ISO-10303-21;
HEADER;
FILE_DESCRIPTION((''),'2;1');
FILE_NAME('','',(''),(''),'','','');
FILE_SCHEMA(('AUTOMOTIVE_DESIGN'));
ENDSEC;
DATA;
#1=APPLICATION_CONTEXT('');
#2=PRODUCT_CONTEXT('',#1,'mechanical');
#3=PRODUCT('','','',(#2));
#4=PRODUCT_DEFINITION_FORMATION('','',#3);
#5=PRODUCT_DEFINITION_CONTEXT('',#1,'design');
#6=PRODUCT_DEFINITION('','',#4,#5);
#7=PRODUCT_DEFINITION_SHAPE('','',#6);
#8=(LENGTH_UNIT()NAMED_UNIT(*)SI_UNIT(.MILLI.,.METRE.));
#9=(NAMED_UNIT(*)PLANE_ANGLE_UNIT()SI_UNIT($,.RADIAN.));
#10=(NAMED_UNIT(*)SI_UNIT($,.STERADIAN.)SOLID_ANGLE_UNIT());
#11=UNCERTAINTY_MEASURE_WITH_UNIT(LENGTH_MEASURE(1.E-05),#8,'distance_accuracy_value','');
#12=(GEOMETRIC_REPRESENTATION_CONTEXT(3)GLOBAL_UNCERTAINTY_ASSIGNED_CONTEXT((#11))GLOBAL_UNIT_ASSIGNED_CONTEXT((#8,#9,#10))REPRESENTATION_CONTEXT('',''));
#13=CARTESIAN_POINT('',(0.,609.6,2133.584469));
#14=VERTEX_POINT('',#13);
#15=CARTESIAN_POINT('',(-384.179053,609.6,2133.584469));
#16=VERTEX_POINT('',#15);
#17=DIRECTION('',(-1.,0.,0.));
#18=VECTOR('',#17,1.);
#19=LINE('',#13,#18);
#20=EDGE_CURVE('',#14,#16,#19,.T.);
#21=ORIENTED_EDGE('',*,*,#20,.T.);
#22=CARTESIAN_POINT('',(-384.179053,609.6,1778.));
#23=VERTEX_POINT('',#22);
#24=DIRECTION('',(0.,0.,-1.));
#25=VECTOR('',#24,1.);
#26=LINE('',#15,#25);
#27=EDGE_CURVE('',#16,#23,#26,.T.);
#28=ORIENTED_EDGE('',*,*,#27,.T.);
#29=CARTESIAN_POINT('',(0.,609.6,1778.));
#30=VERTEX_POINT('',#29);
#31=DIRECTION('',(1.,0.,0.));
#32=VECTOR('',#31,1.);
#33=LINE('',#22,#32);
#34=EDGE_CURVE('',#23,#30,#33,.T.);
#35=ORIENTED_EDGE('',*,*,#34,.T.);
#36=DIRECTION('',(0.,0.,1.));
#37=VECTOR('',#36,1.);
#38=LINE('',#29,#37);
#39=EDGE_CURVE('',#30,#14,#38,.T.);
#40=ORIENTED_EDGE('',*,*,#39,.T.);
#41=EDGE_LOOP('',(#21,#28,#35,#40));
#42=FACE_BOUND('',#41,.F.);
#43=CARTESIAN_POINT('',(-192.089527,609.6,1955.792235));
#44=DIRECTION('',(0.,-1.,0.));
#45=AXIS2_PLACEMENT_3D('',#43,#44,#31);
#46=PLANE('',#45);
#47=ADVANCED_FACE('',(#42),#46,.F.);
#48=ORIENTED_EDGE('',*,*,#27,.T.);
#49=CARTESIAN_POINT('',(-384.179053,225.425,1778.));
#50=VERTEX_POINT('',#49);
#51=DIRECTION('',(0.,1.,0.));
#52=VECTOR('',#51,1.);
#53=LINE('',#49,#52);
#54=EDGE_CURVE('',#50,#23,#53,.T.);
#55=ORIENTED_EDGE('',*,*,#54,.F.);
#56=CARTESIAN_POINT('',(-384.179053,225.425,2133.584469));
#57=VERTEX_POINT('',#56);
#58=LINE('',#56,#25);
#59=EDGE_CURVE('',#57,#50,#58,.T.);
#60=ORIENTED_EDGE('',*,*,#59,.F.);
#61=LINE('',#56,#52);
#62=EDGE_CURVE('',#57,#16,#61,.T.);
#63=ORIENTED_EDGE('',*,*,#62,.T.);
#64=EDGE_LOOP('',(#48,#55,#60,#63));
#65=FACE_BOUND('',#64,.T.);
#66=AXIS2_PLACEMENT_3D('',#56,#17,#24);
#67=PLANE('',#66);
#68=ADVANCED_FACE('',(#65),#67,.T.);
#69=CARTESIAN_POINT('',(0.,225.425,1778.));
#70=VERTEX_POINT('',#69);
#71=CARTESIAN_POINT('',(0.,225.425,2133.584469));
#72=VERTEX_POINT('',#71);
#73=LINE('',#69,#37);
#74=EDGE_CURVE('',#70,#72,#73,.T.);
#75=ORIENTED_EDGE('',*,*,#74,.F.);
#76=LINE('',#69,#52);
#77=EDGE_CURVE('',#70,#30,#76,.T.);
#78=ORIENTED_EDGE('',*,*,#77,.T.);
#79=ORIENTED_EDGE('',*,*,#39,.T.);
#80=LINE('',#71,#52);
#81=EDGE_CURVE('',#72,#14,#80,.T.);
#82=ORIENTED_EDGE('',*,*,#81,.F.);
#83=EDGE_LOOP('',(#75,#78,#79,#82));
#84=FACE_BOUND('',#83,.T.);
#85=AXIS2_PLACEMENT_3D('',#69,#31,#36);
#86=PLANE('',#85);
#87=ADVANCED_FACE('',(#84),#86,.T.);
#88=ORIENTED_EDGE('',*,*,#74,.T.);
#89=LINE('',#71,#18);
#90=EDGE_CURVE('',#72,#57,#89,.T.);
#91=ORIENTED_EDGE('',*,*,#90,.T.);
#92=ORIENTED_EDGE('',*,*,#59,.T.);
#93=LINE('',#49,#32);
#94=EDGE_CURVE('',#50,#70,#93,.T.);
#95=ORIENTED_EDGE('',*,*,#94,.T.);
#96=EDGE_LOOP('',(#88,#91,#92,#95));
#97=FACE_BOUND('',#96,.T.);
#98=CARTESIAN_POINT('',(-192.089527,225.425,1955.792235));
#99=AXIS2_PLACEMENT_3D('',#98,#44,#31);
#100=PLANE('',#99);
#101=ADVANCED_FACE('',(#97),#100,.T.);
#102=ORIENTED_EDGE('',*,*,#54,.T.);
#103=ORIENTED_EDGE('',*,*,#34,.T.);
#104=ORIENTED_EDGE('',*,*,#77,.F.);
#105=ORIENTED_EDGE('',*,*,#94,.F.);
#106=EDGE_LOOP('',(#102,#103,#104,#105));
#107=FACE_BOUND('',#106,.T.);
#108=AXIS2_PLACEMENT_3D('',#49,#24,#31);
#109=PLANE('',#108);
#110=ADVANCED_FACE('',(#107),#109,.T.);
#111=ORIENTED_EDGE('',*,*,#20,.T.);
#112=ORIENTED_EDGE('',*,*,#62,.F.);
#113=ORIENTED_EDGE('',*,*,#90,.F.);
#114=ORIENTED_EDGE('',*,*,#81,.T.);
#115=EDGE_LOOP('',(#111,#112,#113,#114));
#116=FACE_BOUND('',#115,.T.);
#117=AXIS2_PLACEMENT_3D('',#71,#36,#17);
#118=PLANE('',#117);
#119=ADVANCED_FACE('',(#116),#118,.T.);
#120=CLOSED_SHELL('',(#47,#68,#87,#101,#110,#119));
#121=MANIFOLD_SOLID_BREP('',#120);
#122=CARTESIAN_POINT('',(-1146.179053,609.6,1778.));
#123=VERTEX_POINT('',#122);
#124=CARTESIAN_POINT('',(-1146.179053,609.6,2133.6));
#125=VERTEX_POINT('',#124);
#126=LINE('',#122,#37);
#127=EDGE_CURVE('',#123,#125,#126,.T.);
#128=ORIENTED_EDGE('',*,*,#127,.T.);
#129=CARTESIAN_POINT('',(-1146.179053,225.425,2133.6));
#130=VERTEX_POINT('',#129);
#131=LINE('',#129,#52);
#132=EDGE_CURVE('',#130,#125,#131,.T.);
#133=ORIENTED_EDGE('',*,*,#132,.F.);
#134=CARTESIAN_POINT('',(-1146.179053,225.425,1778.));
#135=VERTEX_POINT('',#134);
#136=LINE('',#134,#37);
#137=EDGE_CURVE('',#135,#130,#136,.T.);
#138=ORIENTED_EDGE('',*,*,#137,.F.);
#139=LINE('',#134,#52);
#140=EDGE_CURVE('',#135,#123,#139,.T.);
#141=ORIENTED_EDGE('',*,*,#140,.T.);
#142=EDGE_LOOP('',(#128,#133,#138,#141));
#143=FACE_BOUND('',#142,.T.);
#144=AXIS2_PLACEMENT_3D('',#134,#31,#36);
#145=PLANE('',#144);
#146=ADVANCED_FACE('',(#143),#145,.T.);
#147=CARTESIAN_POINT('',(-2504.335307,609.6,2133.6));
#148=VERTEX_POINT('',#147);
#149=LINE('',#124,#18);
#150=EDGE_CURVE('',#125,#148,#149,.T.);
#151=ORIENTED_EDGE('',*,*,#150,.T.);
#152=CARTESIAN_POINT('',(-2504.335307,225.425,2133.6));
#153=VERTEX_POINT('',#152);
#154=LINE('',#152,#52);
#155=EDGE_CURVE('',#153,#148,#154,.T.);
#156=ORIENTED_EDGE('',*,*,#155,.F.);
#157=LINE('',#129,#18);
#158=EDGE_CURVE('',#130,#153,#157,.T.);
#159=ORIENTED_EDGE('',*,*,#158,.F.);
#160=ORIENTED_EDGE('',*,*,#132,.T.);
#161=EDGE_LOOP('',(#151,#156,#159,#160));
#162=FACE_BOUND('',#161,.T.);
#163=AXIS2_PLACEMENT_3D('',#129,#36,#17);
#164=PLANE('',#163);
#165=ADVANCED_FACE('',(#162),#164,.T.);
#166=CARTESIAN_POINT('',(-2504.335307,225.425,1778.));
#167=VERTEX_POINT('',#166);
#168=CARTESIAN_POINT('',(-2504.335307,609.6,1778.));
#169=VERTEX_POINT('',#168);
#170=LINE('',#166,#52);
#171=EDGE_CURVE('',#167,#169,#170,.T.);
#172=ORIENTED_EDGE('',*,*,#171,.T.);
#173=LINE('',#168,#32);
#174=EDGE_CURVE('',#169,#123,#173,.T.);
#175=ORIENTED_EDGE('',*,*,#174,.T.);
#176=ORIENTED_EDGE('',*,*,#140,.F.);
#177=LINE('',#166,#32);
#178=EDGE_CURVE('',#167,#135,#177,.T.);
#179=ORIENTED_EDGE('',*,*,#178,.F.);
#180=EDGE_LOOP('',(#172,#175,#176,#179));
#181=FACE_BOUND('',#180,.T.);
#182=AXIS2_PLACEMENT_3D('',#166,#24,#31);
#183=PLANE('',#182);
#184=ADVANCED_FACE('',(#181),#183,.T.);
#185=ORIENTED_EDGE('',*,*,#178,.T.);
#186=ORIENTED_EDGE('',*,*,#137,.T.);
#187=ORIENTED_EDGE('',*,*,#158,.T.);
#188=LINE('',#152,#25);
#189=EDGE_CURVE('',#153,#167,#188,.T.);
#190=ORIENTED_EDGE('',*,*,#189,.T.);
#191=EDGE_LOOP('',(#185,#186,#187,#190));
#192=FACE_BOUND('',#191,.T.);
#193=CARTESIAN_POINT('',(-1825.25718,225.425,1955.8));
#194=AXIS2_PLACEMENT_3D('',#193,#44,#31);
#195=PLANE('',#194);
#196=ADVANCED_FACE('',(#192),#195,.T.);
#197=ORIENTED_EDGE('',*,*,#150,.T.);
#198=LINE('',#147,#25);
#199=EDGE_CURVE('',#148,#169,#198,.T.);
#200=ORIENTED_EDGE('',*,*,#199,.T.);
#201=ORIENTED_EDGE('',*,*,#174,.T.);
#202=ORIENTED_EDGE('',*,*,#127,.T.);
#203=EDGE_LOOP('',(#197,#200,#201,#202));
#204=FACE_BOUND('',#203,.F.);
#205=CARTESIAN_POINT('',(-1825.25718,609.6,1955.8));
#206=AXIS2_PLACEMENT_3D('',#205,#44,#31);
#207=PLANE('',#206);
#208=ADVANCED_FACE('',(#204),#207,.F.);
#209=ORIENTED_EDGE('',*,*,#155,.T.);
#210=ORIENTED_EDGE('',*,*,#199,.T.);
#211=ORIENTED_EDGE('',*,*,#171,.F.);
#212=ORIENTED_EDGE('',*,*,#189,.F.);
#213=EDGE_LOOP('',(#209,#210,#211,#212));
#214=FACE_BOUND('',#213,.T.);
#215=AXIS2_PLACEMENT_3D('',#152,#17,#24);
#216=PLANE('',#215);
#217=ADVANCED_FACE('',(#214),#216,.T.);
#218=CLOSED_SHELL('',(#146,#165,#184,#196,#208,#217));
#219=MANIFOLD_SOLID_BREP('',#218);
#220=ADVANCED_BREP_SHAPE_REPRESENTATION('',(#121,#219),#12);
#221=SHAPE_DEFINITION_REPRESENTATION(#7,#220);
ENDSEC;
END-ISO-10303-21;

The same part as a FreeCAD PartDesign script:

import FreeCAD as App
import Part
import Sketcher

V = App.Vector
Q = App.Units.Quantity


def add_polygon(sketch, points):
    """Adds a closed chain of lines whose ends are joined by coincident constraints."""
    first, n = sketch.GeometryCount, len(points)
    for a, b in zip(points, points[1:] + points[:1]):
        sketch.addGeometry(Part.LineSegment(App.Vector(*a, 0), App.Vector(*b, 0)), False)
    for i in range(n):
        sketch.addConstraint(Sketcher.Constraint("Coincident", first + i, 2, first + (i + 1) % n, 1))

doc = App.newDocument("Part")
body = doc.addObject("PartDesign::Body", "Body")

# Sketch on XZ plane
sketch1 = doc.addObject("Sketcher::SketchObject", "Sketch")
body.addObject(sketch1)
sketch1.AttachmentSupport = (doc.XZ_Plane, [""])
sketch1.MapMode = "FlatFace"
sketch1.AttachmentOffset = App.Placement(V(0, 0, -8.875 * 25.4), App.Rotation())
add_polygon(sketch1, [(-1146, 2134), (-2504, 2134), (-2504, 1778), (-1146, 1778)])  # lines 0-3
sketch1.addConstraint(Sketcher.Constraint("Horizontal", 0))
sketch1.addConstraint(Sketcher.Constraint("Vertical", 1))
sketch1.addConstraint(Sketcher.Constraint("Horizontal", 2))
sketch1.addConstraint(Sketcher.Constraint("Vertical", 3))
sketch1.addConstraint(Sketcher.Constraint("DistanceY", 1, 2, 1, 1, Q("14 in")))
sketch1.addConstraint(Sketcher.Constraint("DistanceY", -1, 1, 0, 2, Q("84 in")))
sketch1.addConstraint(Sketcher.Constraint("DistanceX", 0, 2, 0, 1, Q("1358.156254 mm")))
sketch1.addConstraint(Sketcher.Constraint("DistanceX", 0, 2, -1, 1, Q("2504.335307 mm")))
pad1 = doc.addObject("PartDesign::Pad", "Pad")
body.addObject(pad1)
pad1.Profile = sketch1
pad1.Length = Q("15.125 in")
pad1.Reversed = True
body2 = doc.addObject("PartDesign::Body", "Body001")

# Sketch on XZ plane
sketch2 = doc.addObject("Sketcher::SketchObject", "Sketch001")
body2.addObject(sketch2)
sketch2.AttachmentSupport = (doc.getObject("XZ_Plane001"), [""])
sketch2.MapMode = "FlatFace"
sketch2.AttachmentOffset = App.Placement(V(0, 0, -8.875 * 25.4), App.Rotation())
add_polygon(sketch2, [(0, 1778), (0, 2134), (-384, 2134), (-384, 1778)])  # lines 0-3
sketch2.addConstraint(Sketcher.Constraint("Vertical", 0))
sketch2.addConstraint(Sketcher.Constraint("Horizontal", 1))
sketch2.addConstraint(Sketcher.Constraint("Vertical", 2))
sketch2.addConstraint(Sketcher.Constraint("Horizontal", 3))
sketch2.addConstraint(Sketcher.Constraint("PointOnObject", 0, 2, -2))
sketch2.addConstraint(Sketcher.Constraint("DistanceY", -1, 1, 2, 2, Q("70 in")))
sketch2.addConstraint(Sketcher.Constraint("DistanceY", 0, 1, 0, 2, Q("355.584469 mm")))
sketch2.addConstraint(Sketcher.Constraint("DistanceX", 1, 2, 1, 1, Q("384.179053 mm")))
pad2 = doc.addObject("PartDesign::Pad", "Pad001")
body2.addObject(pad2)
pad2.Profile = sketch2
pad2.Length = Q("15.125 in")
pad2.Reversed = True

doc.recompute()
